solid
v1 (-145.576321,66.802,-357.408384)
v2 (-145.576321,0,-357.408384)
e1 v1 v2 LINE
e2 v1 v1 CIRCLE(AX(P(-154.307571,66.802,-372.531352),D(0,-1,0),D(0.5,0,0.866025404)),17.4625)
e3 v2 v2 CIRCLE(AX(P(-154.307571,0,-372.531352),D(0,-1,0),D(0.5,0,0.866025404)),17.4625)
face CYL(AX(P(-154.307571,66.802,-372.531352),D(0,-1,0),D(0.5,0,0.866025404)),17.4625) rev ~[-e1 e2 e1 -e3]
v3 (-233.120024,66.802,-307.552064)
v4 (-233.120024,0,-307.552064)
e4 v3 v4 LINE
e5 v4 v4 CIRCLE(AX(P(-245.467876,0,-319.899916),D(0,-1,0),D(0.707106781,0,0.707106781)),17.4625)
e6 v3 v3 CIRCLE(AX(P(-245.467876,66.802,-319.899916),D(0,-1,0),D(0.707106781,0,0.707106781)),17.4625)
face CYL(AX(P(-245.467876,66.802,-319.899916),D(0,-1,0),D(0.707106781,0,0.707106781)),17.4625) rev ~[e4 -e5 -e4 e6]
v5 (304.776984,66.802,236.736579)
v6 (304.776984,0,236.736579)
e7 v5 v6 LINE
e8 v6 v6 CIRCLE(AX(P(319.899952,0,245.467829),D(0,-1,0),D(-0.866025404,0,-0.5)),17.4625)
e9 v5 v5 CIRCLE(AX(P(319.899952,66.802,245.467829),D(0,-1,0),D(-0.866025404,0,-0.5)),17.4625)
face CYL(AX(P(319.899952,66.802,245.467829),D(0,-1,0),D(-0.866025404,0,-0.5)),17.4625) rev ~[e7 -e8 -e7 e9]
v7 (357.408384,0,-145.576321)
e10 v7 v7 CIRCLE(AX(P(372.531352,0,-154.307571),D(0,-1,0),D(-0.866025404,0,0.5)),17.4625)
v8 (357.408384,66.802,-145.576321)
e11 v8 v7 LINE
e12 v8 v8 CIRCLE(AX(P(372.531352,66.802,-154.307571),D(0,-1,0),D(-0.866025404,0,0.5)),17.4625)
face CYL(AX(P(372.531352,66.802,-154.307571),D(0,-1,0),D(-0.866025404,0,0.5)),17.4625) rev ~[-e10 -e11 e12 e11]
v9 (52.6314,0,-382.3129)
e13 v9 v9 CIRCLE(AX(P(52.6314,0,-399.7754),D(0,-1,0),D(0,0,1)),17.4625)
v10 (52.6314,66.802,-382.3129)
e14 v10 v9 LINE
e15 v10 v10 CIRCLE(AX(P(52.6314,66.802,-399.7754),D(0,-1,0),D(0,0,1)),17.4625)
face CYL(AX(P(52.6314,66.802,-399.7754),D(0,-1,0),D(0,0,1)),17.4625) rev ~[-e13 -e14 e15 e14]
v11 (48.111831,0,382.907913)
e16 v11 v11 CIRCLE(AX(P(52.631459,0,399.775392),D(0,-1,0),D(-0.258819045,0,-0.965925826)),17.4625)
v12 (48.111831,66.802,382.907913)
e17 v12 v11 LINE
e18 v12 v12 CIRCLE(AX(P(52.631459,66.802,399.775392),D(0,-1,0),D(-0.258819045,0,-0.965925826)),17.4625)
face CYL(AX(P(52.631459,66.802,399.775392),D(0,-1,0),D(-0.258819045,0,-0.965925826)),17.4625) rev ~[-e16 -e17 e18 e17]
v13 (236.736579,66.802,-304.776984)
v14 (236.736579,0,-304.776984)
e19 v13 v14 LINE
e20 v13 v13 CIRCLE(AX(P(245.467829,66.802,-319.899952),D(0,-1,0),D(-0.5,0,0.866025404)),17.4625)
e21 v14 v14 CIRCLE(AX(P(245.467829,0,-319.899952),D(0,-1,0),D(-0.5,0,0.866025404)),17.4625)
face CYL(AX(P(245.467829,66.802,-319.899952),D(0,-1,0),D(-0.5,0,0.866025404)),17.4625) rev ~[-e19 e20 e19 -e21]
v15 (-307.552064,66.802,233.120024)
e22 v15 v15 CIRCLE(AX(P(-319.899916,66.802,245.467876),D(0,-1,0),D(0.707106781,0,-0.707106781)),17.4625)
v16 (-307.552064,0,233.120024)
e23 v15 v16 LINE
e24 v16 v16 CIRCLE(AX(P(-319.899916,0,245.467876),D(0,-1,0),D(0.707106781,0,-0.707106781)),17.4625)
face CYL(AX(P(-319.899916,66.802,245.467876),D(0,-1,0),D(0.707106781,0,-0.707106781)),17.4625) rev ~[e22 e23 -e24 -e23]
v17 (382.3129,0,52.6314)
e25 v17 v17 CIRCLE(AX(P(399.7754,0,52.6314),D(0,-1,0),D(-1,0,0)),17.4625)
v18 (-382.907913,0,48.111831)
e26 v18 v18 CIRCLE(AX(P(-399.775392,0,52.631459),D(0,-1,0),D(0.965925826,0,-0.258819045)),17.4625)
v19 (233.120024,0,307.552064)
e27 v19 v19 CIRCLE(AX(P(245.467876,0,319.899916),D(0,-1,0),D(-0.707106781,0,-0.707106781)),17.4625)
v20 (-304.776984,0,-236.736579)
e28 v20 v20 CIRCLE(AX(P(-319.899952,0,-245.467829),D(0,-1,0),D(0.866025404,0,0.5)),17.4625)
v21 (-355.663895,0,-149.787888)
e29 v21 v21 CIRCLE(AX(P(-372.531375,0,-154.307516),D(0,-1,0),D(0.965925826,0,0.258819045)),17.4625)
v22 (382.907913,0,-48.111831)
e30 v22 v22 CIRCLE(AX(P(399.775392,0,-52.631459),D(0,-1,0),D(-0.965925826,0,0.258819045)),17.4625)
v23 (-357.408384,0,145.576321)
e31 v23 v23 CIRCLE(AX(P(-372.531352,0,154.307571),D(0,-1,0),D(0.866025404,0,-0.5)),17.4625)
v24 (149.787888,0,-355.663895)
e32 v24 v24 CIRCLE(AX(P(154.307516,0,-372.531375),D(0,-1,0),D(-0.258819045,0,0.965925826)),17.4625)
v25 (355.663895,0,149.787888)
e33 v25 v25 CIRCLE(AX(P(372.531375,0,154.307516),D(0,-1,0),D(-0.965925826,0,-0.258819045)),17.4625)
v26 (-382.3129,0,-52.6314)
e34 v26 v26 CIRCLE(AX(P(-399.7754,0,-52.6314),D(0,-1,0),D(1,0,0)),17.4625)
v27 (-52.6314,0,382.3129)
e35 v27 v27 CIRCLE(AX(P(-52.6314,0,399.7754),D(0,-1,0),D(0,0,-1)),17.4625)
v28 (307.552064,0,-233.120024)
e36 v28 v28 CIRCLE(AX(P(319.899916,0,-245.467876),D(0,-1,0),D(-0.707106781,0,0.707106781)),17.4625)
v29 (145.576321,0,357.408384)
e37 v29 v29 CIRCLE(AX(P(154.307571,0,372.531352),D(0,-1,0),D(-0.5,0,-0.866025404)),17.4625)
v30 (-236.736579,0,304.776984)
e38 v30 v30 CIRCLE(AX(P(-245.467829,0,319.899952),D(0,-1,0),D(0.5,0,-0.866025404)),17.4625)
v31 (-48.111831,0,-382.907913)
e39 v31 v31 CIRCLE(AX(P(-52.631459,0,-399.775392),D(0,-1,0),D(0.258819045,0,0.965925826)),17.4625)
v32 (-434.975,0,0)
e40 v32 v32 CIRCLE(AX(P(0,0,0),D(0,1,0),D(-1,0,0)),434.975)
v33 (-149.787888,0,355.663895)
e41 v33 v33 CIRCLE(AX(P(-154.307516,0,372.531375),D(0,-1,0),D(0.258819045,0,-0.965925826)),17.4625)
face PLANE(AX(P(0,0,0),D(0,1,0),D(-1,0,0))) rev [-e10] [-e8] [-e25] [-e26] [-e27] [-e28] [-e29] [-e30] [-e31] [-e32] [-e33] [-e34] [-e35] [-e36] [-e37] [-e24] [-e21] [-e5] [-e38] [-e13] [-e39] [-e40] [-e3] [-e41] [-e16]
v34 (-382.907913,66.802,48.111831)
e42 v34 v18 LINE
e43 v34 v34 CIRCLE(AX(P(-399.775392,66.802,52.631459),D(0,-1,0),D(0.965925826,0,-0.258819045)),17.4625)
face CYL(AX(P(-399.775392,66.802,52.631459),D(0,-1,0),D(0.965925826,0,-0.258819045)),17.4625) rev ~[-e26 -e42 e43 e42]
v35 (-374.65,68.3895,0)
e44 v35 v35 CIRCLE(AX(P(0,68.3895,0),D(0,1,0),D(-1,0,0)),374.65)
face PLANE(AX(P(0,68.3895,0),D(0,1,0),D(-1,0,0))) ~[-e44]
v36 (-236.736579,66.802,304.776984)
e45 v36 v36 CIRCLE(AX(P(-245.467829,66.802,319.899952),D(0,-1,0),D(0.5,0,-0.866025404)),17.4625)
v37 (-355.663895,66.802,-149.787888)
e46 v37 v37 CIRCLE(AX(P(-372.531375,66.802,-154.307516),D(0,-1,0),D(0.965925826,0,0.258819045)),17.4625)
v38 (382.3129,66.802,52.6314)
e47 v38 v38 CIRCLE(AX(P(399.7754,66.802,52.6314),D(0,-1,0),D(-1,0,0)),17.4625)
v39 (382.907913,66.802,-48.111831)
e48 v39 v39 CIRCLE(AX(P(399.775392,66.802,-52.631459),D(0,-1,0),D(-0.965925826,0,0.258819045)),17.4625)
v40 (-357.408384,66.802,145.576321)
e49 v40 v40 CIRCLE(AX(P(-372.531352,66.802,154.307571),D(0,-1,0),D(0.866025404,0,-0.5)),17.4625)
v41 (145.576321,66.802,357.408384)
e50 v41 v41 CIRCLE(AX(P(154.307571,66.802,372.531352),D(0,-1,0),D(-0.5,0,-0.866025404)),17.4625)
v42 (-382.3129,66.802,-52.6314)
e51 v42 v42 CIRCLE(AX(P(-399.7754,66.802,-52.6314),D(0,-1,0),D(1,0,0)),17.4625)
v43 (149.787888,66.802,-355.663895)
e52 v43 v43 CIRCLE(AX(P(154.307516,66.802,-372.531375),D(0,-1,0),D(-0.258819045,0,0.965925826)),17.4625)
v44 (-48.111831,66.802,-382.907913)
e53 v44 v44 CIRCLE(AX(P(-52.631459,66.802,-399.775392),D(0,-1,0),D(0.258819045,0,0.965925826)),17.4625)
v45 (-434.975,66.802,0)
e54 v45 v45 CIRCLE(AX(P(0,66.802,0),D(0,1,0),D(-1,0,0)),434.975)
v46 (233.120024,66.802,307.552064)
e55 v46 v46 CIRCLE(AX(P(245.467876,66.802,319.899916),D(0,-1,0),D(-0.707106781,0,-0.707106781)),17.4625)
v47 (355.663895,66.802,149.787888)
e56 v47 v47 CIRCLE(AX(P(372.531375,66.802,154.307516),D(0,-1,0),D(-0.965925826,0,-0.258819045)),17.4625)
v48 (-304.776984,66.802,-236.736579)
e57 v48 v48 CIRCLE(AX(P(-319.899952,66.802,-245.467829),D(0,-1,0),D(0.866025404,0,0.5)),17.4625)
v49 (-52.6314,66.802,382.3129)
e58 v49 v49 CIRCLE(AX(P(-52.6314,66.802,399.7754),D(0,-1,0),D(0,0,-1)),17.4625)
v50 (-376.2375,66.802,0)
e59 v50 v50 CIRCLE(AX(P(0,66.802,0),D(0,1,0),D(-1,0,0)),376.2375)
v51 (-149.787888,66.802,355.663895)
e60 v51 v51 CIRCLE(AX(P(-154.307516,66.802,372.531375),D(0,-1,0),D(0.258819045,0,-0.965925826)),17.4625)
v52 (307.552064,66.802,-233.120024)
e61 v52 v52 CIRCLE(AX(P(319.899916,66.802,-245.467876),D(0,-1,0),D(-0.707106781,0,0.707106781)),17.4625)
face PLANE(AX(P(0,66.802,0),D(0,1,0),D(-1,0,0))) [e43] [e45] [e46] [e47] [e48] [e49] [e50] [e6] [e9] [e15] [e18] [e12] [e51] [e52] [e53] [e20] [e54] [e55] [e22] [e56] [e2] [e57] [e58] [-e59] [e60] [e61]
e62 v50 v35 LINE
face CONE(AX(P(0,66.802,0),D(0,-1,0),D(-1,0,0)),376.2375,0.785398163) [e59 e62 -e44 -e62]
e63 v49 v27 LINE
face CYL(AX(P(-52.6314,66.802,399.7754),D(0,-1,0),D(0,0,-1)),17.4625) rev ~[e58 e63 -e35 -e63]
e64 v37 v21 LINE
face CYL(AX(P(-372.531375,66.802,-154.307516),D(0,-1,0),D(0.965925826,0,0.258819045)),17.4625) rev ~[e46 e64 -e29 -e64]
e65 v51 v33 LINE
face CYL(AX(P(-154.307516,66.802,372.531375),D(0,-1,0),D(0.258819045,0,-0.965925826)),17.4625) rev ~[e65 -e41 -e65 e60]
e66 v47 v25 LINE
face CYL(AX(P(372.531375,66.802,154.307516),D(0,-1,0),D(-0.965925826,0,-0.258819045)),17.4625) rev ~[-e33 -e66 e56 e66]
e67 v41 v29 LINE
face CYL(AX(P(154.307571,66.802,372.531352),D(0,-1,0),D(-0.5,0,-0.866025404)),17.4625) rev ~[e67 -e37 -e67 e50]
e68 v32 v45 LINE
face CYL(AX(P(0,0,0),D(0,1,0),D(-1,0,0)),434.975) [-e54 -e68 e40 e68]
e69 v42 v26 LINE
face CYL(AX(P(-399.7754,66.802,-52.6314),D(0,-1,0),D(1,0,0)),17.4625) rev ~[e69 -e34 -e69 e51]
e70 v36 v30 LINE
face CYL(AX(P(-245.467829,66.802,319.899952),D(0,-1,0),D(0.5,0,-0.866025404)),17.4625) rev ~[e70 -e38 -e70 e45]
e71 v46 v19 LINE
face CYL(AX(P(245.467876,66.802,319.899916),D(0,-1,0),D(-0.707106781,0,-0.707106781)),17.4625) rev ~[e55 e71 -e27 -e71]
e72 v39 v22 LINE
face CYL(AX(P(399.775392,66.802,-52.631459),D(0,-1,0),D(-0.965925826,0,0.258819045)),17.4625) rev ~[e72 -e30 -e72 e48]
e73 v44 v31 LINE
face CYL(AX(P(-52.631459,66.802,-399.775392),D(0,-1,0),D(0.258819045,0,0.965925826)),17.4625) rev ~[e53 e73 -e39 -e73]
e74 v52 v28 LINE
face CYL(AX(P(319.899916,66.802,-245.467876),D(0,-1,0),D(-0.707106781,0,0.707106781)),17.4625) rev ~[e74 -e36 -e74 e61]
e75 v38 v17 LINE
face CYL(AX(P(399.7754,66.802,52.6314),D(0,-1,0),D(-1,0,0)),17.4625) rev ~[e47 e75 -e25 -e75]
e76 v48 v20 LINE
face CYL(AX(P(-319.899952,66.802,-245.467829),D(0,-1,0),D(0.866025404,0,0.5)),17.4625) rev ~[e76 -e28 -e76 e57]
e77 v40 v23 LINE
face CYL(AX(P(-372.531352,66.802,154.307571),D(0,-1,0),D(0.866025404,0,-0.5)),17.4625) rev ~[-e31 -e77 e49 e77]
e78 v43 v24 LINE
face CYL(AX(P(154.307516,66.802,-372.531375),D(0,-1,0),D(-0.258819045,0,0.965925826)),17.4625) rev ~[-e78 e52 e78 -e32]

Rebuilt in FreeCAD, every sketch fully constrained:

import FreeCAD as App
import Part
import Sketcher
Q = App.Units.Quantity


def add_polygon(sketch, points):
    """Adds a closed chain of lines whose ends are joined by coincident constraints."""
    first, n = sketch.GeometryCount, len(points)
    for a, b in zip(points, points[1:] + points[:1]):
        sketch.addGeometry(Part.LineSegment(App.Vector(*a, 0), App.Vector(*b, 0)), False)
    for i in range(n):
        sketch.addConstraint(Sketcher.Constraint("Coincident", first + i, 2, first + (i + 1) % n, 1))

doc = App.newDocument("Part")
body = doc.addObject("PartDesign::Body", "Body")

sketch1 = body.newObject("Sketcher::SketchObject", "Sketch")
sketch1.AttachmentSupport = (doc.getObject("XY_Plane"), [""])
sketch1.MapMode = "FlatFace"
add_polygon(sketch1, [(-435, 0), (0, 0), (0, 68.4), (-374.6, 68.4), (-376.2, 66.8), (-435, 66.8)])
sketch1.addConstraint(Sketcher.Constraint("Horizontal", 0))
sketch1.addConstraint(Sketcher.Constraint("Vertical", 1))
sketch1.addConstraint(Sketcher.Constraint("Horizontal", 2))
sketch1.addConstraint(Sketcher.Constraint("Horizontal", 4))
sketch1.addConstraint(Sketcher.Constraint("Vertical", 5))
sketch1.addConstraint(Sketcher.Constraint("Coincident", 0, 2, -1, 1))
sketch1.addConstraint(Sketcher.Constraint("Angle", 3, Q("-135 deg")))
sketch1.addConstraint(Sketcher.Constraint("DistanceY", 5, 2, 5, 1, Q("2.63 in")))
sketch1.addConstraint(Sketcher.Constraint("DistanceX", 3, 2, 2, 2, Q("0.0625 in")))
sketch1.addConstraint(Sketcher.Constraint("DistanceX", 2, 2, 2, 1, Q("14.75 in")))
sketch1.addConstraint(Sketcher.Constraint("DistanceX", 0, 1, 0, 2, Q("17.125 in")))
revolution = body.newObject("PartDesign::Revolution", "Revolution")
revolution.Profile = sketch1
revolution.ReferenceAxis = (sketch1, ["V_Axis"])
revolution.Angle = 360

sketch2 = body.newObject("Sketcher::SketchObject", "Sketch001")
sketch2.AttachmentSupport = (doc.getObject("XZ_Plane"), [""])
sketch2.MapMode = "FlatFace"
sketch2.AttachmentOffset = App.Placement(App.Vector(0, 0, -2.63 * 25.4), App.Rotation())
sketch2.addGeometry(Part.Circle(App.Vector(53, -400, 0), App.Vector(0, 0, 1), 17), False)
sketch2.addConstraint(Sketcher.Constraint("Diameter", 0, Q("1.375 in")))
sketch2.addConstraint(Sketcher.Constraint("DistanceX", -1, 1, 0, 3, Q("2.0721 in")))
sketch2.addConstraint(Sketcher.Constraint("DistanceY", 0, 3, -1, 1, Q("15.7392 in")))
doc.recompute()
hole = body.newObject("PartDesign::Hole", "Hole")
hole.Profile = sketch2
hole.ThreadType = "None"
hole.Diameter = Q("1.375 in")
hole.DepthType = "Dimension"
hole.Depth = Q("2.63 in")
hole.DrillPoint = "Flat"
hole.Reversed = True
doc.recompute()

polarpattern = body.newObject("PartDesign::PolarPattern", "PolarPattern")
polarpattern.Originals = [hole]
polarpattern.Axis = (doc.getObject("Y_Axis"), [""])
polarpattern.Angle = 360
polarpattern.Occurrences = 24
body.Tip = polarpattern

doc.recompute()
